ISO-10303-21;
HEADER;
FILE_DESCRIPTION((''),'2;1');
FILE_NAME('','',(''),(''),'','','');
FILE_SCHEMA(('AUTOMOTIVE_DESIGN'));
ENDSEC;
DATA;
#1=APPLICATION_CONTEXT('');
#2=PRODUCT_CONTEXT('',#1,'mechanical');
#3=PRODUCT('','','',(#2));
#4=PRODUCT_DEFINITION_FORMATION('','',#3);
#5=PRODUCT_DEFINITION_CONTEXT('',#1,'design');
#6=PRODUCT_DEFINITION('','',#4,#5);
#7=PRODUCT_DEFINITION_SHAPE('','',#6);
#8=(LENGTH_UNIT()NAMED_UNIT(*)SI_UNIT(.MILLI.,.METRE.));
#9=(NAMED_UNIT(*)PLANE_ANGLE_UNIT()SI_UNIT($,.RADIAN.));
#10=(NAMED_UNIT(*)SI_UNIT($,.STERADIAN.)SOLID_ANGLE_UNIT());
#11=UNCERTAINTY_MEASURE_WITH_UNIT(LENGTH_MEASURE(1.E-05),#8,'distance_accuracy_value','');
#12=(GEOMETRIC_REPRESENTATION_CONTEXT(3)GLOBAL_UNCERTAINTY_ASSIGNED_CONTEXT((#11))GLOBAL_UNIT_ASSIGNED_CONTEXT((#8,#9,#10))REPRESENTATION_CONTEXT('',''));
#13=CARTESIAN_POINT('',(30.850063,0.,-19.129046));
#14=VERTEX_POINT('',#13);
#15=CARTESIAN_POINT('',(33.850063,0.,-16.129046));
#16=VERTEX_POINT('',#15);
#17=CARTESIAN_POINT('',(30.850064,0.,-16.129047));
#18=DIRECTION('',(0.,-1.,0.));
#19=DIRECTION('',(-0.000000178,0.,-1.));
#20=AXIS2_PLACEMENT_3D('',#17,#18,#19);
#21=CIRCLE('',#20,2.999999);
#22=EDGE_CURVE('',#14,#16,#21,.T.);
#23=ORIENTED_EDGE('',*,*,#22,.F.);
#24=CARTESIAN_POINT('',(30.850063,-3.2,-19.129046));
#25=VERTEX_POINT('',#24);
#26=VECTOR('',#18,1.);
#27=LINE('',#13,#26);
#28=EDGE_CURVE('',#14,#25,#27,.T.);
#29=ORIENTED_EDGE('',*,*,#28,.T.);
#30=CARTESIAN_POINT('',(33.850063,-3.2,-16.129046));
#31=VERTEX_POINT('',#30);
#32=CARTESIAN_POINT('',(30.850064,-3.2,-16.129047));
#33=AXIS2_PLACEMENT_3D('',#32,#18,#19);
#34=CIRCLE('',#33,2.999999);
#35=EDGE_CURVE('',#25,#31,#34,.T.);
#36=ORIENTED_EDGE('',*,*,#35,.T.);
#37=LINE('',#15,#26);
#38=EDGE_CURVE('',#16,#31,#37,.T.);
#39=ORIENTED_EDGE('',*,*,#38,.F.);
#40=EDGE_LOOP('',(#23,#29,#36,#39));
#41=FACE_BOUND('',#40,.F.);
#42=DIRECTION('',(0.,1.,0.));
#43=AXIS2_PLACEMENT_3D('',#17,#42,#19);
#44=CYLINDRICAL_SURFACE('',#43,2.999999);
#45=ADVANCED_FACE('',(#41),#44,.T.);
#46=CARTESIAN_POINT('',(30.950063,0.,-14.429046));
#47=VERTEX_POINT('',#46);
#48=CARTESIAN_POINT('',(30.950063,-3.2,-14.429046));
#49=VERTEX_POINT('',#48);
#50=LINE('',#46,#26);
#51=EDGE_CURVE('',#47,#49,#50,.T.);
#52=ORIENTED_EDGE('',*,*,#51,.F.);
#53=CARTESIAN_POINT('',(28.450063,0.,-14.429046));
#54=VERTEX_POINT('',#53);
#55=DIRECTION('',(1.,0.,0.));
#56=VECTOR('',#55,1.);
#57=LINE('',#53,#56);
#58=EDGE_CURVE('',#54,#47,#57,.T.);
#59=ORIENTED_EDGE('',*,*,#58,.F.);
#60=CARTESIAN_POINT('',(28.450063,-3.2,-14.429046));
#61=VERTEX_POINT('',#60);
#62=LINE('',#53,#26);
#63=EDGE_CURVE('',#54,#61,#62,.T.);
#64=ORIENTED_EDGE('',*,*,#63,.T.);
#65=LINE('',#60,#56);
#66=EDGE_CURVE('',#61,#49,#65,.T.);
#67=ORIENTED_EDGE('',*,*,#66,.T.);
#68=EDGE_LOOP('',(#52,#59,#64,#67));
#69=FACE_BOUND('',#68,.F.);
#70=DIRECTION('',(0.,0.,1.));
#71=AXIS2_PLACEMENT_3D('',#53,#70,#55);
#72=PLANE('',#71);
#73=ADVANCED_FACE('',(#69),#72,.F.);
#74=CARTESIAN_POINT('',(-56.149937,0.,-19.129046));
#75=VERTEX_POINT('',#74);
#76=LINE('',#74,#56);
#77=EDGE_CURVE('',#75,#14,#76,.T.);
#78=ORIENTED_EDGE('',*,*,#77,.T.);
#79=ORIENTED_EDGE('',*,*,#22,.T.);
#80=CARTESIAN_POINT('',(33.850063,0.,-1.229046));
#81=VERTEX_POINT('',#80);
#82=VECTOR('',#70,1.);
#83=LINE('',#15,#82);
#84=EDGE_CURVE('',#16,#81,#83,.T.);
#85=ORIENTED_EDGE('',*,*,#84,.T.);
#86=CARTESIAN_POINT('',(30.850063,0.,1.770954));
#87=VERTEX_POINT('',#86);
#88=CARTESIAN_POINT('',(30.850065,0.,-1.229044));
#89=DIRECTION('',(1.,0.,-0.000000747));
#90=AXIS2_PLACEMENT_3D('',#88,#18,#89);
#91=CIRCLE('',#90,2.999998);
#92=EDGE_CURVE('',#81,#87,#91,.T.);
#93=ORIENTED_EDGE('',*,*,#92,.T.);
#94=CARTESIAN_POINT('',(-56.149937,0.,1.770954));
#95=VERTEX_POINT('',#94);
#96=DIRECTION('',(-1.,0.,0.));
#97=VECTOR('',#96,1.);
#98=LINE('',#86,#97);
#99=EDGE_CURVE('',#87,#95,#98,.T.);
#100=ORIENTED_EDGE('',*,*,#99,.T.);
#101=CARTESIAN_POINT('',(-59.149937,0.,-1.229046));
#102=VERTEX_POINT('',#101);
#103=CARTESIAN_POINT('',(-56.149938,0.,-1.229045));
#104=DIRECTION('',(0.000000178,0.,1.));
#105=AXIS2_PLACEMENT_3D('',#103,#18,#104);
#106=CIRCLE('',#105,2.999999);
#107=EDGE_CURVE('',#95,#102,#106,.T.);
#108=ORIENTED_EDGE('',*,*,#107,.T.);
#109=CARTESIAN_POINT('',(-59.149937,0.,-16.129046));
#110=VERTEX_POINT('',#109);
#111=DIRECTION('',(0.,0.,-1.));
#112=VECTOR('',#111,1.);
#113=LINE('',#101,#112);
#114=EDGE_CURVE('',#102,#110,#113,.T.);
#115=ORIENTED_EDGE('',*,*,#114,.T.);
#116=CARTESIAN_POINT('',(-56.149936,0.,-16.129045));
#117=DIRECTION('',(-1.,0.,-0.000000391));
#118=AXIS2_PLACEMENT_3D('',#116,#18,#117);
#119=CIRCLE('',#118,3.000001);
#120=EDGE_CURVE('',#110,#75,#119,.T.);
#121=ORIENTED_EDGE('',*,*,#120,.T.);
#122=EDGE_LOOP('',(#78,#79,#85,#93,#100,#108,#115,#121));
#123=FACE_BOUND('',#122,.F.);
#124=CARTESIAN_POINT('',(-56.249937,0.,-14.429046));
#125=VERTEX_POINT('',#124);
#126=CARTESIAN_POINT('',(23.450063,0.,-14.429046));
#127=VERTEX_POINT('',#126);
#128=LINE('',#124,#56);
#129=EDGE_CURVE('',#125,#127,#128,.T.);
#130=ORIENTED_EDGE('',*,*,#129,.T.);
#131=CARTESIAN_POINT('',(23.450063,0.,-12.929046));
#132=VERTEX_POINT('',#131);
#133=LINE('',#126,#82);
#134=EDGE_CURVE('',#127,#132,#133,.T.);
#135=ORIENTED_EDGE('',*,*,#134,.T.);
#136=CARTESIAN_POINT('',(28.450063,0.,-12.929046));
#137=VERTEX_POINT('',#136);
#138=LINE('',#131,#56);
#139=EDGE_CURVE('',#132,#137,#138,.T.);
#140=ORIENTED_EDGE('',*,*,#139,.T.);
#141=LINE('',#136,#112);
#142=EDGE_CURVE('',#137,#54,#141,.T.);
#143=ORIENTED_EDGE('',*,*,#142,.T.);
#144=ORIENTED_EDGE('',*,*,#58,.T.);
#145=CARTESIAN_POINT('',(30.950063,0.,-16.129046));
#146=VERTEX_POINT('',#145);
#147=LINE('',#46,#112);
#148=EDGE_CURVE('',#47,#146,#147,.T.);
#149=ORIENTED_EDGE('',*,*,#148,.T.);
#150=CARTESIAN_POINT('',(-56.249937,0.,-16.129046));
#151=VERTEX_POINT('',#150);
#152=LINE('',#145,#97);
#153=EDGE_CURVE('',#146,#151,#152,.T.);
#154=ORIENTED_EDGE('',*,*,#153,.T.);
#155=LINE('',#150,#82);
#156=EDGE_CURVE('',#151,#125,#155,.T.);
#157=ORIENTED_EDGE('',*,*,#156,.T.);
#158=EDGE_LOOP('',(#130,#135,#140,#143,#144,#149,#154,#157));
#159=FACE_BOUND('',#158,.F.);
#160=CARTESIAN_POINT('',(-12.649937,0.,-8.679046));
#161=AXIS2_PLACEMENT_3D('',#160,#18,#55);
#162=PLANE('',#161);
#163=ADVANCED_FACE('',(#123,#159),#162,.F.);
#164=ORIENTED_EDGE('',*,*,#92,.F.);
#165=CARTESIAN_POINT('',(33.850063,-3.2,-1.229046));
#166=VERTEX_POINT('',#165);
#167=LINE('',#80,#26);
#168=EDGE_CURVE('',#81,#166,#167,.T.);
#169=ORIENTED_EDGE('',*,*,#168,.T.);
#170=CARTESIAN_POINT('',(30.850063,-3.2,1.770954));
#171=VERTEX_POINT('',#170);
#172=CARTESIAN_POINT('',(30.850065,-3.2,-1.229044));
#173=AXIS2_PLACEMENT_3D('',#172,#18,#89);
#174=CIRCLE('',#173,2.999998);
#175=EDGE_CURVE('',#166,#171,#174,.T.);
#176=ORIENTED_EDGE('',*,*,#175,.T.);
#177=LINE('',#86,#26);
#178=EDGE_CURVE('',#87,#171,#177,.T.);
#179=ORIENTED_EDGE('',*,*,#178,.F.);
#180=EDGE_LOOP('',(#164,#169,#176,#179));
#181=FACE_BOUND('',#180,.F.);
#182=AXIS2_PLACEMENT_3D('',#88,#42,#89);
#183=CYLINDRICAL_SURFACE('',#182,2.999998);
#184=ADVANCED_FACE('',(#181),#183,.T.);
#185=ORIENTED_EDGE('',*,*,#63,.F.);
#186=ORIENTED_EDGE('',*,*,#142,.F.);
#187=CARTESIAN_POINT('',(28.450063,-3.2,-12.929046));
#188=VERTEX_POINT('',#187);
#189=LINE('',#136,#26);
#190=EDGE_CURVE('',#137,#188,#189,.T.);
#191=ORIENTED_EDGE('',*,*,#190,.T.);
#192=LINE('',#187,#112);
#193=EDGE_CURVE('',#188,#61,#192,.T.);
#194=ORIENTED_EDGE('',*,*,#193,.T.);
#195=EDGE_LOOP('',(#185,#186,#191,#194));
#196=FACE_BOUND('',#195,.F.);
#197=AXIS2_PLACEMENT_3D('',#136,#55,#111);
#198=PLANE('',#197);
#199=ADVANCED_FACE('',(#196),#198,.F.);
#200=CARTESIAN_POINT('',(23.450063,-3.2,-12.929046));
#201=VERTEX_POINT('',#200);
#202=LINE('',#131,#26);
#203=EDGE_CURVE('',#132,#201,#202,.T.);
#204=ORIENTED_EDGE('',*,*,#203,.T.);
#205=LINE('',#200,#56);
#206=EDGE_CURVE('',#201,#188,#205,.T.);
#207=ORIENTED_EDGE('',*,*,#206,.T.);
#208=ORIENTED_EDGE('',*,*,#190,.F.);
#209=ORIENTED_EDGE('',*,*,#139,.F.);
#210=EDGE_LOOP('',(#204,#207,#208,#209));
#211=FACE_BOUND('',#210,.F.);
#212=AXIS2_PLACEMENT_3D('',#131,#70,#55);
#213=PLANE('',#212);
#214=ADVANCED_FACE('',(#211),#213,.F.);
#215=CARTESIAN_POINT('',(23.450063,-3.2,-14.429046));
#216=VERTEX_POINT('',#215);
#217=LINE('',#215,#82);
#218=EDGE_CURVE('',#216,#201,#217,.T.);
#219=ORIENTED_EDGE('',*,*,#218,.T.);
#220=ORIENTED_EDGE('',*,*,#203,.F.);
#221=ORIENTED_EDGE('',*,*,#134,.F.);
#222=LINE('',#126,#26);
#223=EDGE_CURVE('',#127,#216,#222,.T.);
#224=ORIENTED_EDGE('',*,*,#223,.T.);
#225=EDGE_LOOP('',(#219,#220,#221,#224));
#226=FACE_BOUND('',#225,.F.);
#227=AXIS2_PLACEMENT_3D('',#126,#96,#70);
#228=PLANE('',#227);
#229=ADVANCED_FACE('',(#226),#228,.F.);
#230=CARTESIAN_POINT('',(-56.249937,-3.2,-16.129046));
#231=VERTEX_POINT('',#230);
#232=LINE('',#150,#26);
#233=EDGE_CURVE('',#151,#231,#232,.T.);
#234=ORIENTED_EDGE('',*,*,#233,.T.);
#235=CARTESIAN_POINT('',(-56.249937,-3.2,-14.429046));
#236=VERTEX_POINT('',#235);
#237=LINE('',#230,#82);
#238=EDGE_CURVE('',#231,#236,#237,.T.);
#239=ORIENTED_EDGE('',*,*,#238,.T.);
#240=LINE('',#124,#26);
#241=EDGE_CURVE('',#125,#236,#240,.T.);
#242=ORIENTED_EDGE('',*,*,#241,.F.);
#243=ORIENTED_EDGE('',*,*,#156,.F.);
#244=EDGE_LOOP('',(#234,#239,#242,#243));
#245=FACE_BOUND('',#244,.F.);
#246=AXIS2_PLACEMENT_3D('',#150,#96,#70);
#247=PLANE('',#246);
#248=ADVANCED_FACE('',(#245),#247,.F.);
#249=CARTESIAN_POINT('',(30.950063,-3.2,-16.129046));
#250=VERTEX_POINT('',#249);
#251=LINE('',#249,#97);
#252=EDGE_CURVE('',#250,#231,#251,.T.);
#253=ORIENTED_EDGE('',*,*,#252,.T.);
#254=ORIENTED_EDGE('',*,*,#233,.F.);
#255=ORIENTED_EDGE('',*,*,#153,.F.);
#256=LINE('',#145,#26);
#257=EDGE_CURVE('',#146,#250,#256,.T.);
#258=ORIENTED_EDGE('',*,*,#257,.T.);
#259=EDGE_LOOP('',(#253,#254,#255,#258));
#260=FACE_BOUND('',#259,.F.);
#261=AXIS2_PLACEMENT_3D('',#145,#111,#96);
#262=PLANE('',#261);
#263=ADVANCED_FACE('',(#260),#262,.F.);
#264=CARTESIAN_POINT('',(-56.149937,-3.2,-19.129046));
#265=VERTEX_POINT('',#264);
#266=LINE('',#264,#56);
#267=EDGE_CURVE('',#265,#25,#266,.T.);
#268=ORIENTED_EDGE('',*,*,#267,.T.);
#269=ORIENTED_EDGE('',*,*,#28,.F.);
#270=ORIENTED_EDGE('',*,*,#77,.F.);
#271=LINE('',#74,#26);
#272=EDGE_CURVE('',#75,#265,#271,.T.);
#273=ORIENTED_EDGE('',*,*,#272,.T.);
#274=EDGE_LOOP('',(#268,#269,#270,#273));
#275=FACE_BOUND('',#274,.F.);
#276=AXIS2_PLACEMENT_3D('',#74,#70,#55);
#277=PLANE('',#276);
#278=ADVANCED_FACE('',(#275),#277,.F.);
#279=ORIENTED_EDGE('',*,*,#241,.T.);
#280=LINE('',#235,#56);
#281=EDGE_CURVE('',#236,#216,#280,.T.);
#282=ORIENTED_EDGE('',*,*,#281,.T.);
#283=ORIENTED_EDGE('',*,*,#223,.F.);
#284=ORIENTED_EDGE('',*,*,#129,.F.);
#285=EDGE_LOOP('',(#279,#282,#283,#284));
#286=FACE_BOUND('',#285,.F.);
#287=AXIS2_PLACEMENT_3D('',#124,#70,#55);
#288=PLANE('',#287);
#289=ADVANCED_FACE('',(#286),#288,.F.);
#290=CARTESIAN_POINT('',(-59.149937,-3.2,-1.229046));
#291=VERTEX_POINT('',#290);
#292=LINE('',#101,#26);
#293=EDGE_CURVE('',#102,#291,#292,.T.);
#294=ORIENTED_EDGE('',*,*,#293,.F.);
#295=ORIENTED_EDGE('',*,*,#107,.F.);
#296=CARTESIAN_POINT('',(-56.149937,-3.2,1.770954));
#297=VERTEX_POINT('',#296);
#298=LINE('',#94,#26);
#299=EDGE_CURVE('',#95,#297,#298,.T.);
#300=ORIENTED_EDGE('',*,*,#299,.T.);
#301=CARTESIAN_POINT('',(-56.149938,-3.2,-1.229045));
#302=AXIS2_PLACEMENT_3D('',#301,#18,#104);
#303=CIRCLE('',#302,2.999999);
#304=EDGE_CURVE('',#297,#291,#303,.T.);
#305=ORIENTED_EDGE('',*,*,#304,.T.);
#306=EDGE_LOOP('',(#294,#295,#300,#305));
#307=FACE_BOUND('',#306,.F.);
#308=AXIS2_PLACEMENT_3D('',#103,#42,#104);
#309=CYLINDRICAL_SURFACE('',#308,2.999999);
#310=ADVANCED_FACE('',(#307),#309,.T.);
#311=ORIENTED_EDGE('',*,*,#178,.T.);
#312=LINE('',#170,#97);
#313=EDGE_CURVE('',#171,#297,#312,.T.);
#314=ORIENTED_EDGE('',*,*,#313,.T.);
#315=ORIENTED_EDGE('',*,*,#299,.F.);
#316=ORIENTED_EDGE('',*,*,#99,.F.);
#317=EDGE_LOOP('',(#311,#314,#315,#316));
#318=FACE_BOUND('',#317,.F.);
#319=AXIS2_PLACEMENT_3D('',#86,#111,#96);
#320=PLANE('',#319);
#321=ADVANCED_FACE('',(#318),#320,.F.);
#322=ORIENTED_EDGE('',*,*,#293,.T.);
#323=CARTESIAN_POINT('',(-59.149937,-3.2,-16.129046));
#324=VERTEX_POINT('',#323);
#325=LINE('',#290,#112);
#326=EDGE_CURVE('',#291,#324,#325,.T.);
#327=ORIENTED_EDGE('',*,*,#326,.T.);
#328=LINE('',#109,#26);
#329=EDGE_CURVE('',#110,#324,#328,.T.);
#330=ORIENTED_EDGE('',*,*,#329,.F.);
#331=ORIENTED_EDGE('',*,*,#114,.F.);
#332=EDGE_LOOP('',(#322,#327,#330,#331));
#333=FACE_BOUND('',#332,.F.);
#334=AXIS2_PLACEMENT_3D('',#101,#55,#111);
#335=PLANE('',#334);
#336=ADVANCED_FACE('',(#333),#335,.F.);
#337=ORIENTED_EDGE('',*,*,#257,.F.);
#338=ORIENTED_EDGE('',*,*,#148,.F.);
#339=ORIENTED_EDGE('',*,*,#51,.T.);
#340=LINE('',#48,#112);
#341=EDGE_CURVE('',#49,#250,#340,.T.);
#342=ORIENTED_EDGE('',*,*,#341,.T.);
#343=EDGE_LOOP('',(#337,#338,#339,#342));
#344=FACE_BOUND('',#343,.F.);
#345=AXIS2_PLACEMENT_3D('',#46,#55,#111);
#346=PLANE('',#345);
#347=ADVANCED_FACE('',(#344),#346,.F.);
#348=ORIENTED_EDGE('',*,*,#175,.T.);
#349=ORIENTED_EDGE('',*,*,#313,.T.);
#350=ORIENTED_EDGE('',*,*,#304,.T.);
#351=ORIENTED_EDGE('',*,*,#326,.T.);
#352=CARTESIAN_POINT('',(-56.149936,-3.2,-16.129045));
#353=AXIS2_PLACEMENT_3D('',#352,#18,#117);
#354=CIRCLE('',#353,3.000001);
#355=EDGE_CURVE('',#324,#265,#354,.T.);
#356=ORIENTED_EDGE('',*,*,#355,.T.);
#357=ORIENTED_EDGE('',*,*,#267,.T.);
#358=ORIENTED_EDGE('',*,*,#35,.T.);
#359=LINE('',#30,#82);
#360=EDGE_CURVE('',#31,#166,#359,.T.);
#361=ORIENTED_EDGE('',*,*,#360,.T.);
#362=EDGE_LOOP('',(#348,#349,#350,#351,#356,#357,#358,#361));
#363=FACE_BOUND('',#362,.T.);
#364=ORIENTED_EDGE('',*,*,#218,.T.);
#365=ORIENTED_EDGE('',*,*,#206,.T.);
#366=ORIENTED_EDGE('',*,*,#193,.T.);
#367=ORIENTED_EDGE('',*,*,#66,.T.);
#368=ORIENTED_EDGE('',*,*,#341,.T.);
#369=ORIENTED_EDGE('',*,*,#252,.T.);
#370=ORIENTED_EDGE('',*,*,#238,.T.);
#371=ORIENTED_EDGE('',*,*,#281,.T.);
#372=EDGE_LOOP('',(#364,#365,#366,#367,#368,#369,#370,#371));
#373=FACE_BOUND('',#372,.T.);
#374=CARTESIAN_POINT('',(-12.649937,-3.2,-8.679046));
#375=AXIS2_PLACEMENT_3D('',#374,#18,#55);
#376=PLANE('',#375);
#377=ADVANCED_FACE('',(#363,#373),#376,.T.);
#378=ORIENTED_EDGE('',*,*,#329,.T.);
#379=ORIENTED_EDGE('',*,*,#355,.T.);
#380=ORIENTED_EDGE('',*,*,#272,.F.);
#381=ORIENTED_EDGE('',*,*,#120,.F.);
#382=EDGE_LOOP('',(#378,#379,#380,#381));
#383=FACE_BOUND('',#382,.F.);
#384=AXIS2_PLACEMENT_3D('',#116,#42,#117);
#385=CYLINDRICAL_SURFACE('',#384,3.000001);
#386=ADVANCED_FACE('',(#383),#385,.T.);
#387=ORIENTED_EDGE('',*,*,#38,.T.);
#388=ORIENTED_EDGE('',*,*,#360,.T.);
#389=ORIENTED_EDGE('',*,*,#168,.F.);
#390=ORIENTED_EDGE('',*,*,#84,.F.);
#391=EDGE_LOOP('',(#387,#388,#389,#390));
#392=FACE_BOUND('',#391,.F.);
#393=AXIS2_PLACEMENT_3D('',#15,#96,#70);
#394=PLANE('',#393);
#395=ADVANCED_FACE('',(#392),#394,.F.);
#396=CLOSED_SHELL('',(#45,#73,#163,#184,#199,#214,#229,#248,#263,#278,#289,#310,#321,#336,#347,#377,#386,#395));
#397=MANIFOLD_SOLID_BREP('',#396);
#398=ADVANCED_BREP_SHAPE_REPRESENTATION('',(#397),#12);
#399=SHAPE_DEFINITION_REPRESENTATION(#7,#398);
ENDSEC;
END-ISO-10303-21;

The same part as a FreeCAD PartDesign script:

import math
import FreeCAD as App
import Part
import Sketcher

V = App.Vector
Q = App.Units.Quantity

doc = App.newDocument("Part")
body = doc.addObject("PartDesign::Body", "Body")

sketch1 = body.newObject("Sketcher::SketchObject", "Sketch")
sketch1.AttachmentSupport = (doc.getObject("XZ_Plane"), [""])
sketch1.MapMode = "FlatFace"
sketch1.addGeometry(Part.LineSegment(V(30.850063, 1.770954, 0), V(-56.149937, 1.770954, 0)), False)
sketch1.addGeometry(Part.ArcOfCircle(Part.Circle(V(-56.149938, -1.229045, 0), V(0, 0, 1), 2.999999), math.radians(89.99999), math.radians(180.00001)), False)
sketch1.addGeometry(Part.LineSegment(V(-59.149937, -1.229046, 0), V(-59.149937, -16.129046, 0)), False)
sketch1.addGeometry(Part.ArcOfCircle(Part.Circle(V(-56.149936, -16.129045, 0), V(0, 0, 1), 3.000001), math.radians(-179.999978), math.radians(-90.000022)), False)
sketch1.addGeometry(Part.LineSegment(V(-56.149937, -19.129046, 0), V(30.850063, -19.129046, 0)), False)
sketch1.addGeometry(Part.ArcOfCircle(Part.Circle(V(30.850064, -16.129047, 0), V(0, 0, 1), 2.999999), math.radians(-90.00001), math.radians(0.00001)), False)
sketch1.addGeometry(Part.LineSegment(V(33.850063, -16.129046, 0), V(33.850063, -1.229046, 0)), False)
sketch1.addGeometry(Part.ArcOfCircle(Part.Circle(V(30.850065, -1.229044, 0), V(0, 0, 1), 2.999998), math.radians(-0.000043), math.radians(90.000043)), False)
sketch1.addGeometry(Part.LineSegment(V(30.950063, -16.129046, 0), V(-56.249937, -16.129046, 0)), False)
sketch1.addGeometry(Part.LineSegment(V(-56.249937, -16.129046, 0), V(-56.249937, -14.429046, 0)), False)
sketch1.addGeometry(Part.LineSegment(V(-56.249937, -14.429046, 0), V(23.450063, -14.429046, 0)), False)
sketch1.addGeometry(Part.LineSegment(V(23.450063, -14.429046, 0), V(23.450063, -12.929046, 0)), False)
sketch1.addGeometry(Part.LineSegment(V(23.450063, -12.929046, 0), V(28.450063, -12.929046, 0)), False)
sketch1.addGeometry(Part.LineSegment(V(28.450063, -12.929046, 0), V(28.450063, -14.429046, 0)), False)
sketch1.addGeometry(Part.LineSegment(V(28.450063, -14.429046, 0), V(30.950063, -14.429046, 0)), False)
sketch1.addGeometry(Part.LineSegment(V(30.950063, -14.429046, 0), V(30.950063, -16.129046, 0)), False)
sketch1.addConstraint(Sketcher.Constraint("Tangent", 0, 2, 1, 1))
sketch1.addConstraint(Sketcher.Constraint("Tangent", 1, 2, 2, 1))
sketch1.addConstraint(Sketcher.Constraint("Tangent", 2, 2, 3, 1))
sketch1.addConstraint(Sketcher.Constraint("Tangent", 3, 2, 4, 1))
sketch1.addConstraint(Sketcher.Constraint("Tangent", 4, 2, 5, 1))
sketch1.addConstraint(Sketcher.Constraint("Tangent", 5, 2, 6, 1))
sketch1.addConstraint(Sketcher.Constraint("Tangent", 6, 2, 7, 1))
sketch1.addConstraint(Sketcher.Constraint("Tangent", 7, 2, 0, 1))
sketch1.addConstraint(Sketcher.Constraint("Coincident", 8, 2, 9, 1))
sketch1.addConstraint(Sketcher.Constraint("Coincident", 9, 2, 10, 1))
sketch1.addConstraint(Sketcher.Constraint("Coincident", 10, 2, 11, 1))
sketch1.addConstraint(Sketcher.Constraint("Coincident", 11, 2, 12, 1))
sketch1.addConstraint(Sketcher.Constraint("Coincident", 12, 2, 13, 1))
sketch1.addConstraint(Sketcher.Constraint("Coincident", 13, 2, 14, 1))
sketch1.addConstraint(Sketcher.Constraint("Coincident", 14, 2, 15, 1))
sketch1.addConstraint(Sketcher.Constraint("Coincident", 15, 2, 8, 1))
sketch1.addConstraint(Sketcher.Constraint("Horizontal", 0))
sketch1.addConstraint(Sketcher.Constraint("Vertical", 2))
sketch1.addConstraint(Sketcher.Constraint("Horizontal", 4))
sketch1.addConstraint(Sketcher.Constraint("Vertical", 6))
sketch1.addConstraint(Sketcher.Constraint("Horizontal", 8))
sketch1.addConstraint(Sketcher.Constraint("Vertical", 9))
sketch1.addConstraint(Sketcher.Constraint("Horizontal", 10))
sketch1.addConstraint(Sketcher.Constraint("Vertical", 11))
sketch1.addConstraint(Sketcher.Constraint("Horizontal", 12))
sketch1.addConstraint(Sketcher.Constraint("Vertical", 13))
sketch1.addConstraint(Sketcher.Constraint("Horizontal", 14))
sketch1.addConstraint(Sketcher.Constraint("Vertical", 15))
sketch1.addConstraint(Sketcher.Constraint("Equal", 1, 3))
sketch1.addConstraint(Sketcher.Constraint("Equal", 3, 5))
sketch1.addConstraint(Sketcher.Constraint("Equal", 5, 7))
sketch1.addConstraint(Sketcher.Constraint("Horizontal", 5, 2, 8, 2))
sketch1.addConstraint(Sketcher.Constraint("Horizontal", 10, 2, 13, 2))
sketch1.addConstraint(Sketcher.Constraint("Radius", 1, Q("2.999999 mm")))
sketch1.addConstraint(Sketcher.Constraint("DistanceX", 0, 2, 0, 1, Q("87 mm")))
sketch1.addConstraint(Sketcher.Constraint("DistanceX", 12, 1, 12, 2, Q("5 mm")))
sketch1.addConstraint(Sketcher.Constraint("DistanceX", 8, 2, 8, 1, Q("87.2 mm")))
sketch1.addConstraint(Sketcher.Constraint("DistanceX", 10, 1, 10, 2, Q("79.7 mm")))
sketch1.addConstraint(Sketcher.Constraint("DistanceY", 2, 2, 2, 1, Q("14.9 mm")))
sketch1.addConstraint(Sketcher.Constraint("DistanceY", 9, 1, 9, 2, Q("1.7 mm")))
sketch1.addConstraint(Sketcher.Constraint("DistanceY", 11, 1, 11, 2, Q("1.5 mm")))
sketch1.addConstraint(Sketcher.Constraint("DistanceX", 8, 2, 3, 3, Q("0.100001 mm")))
sketch1.addConstraint(Sketcher.Constraint("DistanceX", 1, 3, -1, 1, Q("56.149938 mm")))
sketch1.addConstraint(Sketcher.Constraint("DistanceY", 1, 3, -1, 1, Q("1.229045 mm")))
pad1 = body.newObject("PartDesign::Pad", "Pad")
pad1.Profile = sketch1
pad1.Length = 3.2

doc.recompute()
